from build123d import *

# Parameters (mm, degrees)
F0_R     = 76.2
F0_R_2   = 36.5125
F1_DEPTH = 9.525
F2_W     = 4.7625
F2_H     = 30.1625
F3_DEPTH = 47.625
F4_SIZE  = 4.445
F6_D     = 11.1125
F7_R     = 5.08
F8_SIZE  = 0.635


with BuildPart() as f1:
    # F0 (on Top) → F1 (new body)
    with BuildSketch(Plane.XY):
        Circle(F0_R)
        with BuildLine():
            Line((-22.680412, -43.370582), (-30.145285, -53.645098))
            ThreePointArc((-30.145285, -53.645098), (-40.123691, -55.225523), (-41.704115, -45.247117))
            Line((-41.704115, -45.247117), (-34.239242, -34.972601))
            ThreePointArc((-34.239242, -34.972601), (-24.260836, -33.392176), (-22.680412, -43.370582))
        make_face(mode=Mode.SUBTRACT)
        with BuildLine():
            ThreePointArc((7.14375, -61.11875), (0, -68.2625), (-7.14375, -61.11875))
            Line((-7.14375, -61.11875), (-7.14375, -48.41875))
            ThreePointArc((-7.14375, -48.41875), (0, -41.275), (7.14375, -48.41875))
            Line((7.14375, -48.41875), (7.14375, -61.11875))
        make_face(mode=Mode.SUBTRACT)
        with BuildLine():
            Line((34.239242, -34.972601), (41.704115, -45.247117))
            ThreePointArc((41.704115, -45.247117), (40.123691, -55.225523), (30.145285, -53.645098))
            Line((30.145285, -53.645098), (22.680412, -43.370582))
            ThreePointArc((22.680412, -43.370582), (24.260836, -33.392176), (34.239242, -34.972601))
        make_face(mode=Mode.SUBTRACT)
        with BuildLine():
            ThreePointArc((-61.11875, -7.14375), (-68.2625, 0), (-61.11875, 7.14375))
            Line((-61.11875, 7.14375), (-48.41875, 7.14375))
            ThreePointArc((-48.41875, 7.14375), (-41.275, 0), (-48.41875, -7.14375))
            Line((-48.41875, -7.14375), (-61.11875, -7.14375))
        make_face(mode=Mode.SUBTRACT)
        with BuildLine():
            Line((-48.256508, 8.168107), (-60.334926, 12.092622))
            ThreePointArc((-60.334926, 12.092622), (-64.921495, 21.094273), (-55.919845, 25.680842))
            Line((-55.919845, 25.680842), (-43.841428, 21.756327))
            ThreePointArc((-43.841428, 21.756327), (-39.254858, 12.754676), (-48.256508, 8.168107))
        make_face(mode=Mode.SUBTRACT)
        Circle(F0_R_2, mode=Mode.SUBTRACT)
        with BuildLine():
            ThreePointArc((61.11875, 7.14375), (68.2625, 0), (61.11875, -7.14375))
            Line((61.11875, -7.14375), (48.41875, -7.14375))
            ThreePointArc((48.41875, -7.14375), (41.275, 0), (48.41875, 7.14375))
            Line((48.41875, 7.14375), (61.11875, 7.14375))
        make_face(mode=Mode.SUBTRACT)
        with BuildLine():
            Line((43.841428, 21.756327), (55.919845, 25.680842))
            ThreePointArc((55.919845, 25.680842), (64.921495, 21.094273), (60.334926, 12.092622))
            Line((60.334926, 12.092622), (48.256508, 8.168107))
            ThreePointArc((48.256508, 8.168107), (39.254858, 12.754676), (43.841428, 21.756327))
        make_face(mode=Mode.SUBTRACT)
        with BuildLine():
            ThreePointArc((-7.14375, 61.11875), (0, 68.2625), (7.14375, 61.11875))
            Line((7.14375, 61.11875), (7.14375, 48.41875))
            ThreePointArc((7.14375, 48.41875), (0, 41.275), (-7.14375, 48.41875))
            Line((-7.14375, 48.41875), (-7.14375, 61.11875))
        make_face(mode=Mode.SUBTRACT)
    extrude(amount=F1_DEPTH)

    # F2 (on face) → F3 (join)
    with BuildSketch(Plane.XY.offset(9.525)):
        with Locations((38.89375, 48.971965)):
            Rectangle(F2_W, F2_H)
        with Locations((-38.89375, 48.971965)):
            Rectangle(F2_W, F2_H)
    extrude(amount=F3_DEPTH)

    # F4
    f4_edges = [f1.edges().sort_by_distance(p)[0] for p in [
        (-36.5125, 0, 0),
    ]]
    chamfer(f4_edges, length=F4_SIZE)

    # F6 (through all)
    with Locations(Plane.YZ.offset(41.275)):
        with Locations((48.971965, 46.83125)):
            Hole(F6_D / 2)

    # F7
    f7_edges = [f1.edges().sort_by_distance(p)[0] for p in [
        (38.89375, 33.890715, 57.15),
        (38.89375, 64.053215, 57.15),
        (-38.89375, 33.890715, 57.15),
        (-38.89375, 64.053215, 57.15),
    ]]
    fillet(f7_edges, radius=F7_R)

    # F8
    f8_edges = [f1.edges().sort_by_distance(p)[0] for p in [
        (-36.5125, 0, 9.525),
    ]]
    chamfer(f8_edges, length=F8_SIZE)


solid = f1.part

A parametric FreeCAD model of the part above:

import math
import FreeCAD as App
import Part
import Sketcher
Q = App.Units.Quantity


def edges_at(feature, points):
    """Names of the edges that pass closest to the given points."""
    edges = feature.Shape.Edges
    near = lambda p: min(range(len(edges)), key=lambda i: edges[i].distToShape(Part.Vertex(*p))[0])
    return sorted({f"Edge{near(p) + 1}" for p in points})


def add_polygon(sketch, points):
    """Adds a closed chain of lines whose ends are joined by coincident constraints."""
    first, n = sketch.GeometryCount, len(points)
    for a, b in zip(points, points[1:] + points[:1]):
        sketch.addGeometry(Part.LineSegment(App.Vector(*a, 0), App.Vector(*b, 0)), False)
    for i in range(n):
        sketch.addConstraint(Sketcher.Constraint("Coincident", first + i, 2, first + (i + 1) % n, 1))

doc = App.newDocument("Part")
body = doc.addObject("PartDesign::Body", "Body")

# Sketch on XY plane
sketch1 = body.newObject("Sketcher::SketchObject", "Sketch")
sketch1.AttachmentSupport = (doc.getObject("XY_Plane"), [""])
sketch1.MapMode = "FlatFace"
sketch1.addGeometry(Part.Circle(App.Vector(0, 0, 0), App.Vector(0, 0, 1), 76), False)
sketch1.addGeometry(Part.ArcOfCircle(Part.Circle(App.Vector(-28, -39, 0), App.Vector(0, 0, 1), 7), math.radians(-36), math.radians(144)), False)
sketch1.addGeometry(Part.LineSegment(App.Vector(-23, -43, 0), App.Vector(-30, -54, 0)), False)
sketch1.addGeometry(Part.ArcOfCircle(Part.Circle(App.Vector(-36, -49, 0), App.Vector(0, 0, 1), 7), math.radians(144), math.radians(324)), False)
sketch1.addGeometry(Part.LineSegment(App.Vector(-42, -45, 0), App.Vector(-34, -35, 0)), False)
sketch1.addGeometry(Part.LineSegment(App.Vector(7, -48, 0), App.Vector(7, -61, 0)), False)
sketch1.addGeometry(Part.ArcOfCircle(Part.Circle(App.Vector(0, -61, 0), App.Vector(0, 0, 1), 7), math.radians(180), math.radians(360)), False)
sketch1.addGeometry(Part.LineSegment(App.Vector(-7, -61, 0), App.Vector(-7, -48, 0)), False)
sketch1.addGeometry(Part.ArcOfCircle(Part.Circle(App.Vector(0, -48, 0), App.Vector(0, 0, 1), 7), math.radians(0), math.radians(180)), False)
sketch1.addGeometry(Part.ArcOfCircle(Part.Circle(App.Vector(28, -39, 0), App.Vector(0, 0, 1), 7), math.radians(36), math.radians(216)), False)
sketch1.addGeometry(Part.LineSegment(App.Vector(34, -35, 0), App.Vector(42, -45, 0)), False)
sketch1.addGeometry(Part.ArcOfCircle(Part.Circle(App.Vector(36, -49, 0), App.Vector(0, 0, 1), 7), math.radians(-144), math.radians(36)), False)
sketch1.addGeometry(Part.LineSegment(App.Vector(30, -54, 0), App.Vector(23, -43, 0)), False)
sketch1.addGeometry(Part.LineSegment(App.Vector(-48, -7, 0), App.Vector(-61, -7, 0)), False)
sketch1.addGeometry(Part.ArcOfCircle(Part.Circle(App.Vector(-61, 0, 0), App.Vector(0, 0, 1), 7), math.radians(90), math.radians(270)), False)
sketch1.addGeometry(Part.LineSegment(App.Vector(-61, 7, 0), App.Vector(-48, 7, 0)), False)
sketch1.addGeometry(Part.ArcOfCircle(Part.Circle(App.Vector(-48, 0, 0), App.Vector(0, 0, 1), 7), math.radians(-90), math.radians(90)), False)
sketch1.addGeometry(Part.ArcOfCircle(Part.Circle(App.Vector(-46, 15, 0), App.Vector(0, 0, 1), 7), math.radians(-108), math.radians(72)), False)
sketch1.addGeometry(Part.LineSegment(App.Vector(-48, 8, 0), App.Vector(-60, 12, 0)), False)
sketch1.addGeometry(Part.ArcOfCircle(Part.Circle(App.Vector(-58, 19, 0), App.Vector(0, 0, 1), 7), math.radians(72), math.radians(252)), False)
sketch1.addGeometry(Part.LineSegment(App.Vector(-56, 26, 0), App.Vector(-44, 22, 0)), False)
sketch1.addGeometry(Part.Circle(App.Vector(0, 0, 0), App.Vector(0, 0, 1), 37), False)
sketch1.addGeometry(Part.LineSegment(App.Vector(48, 7, 0), App.Vector(61, 7, 0)), False)
sketch1.addGeometry(Part.ArcOfCircle(Part.Circle(App.Vector(61, 0, 0), App.Vector(0, 0, 1), 7), math.radians(-90), math.radians(90)), False)
sketch1.addGeometry(Part.LineSegment(App.Vector(61, -7, 0), App.Vector(48, -7, 0)), False)
sketch1.addGeometry(Part.ArcOfCircle(Part.Circle(App.Vector(48, 0, 0), App.Vector(0, 0, 1), 7), math.radians(90), math.radians(270)), False)
sketch1.addGeometry(Part.ArcOfCircle(Part.Circle(App.Vector(46, 15, 0), App.Vector(0, 0, 1), 7), math.radians(108), math.radians(288)), False)
sketch1.addGeometry(Part.LineSegment(App.Vector(44, 22, 0), App.Vector(56, 26, 0)), False)
sketch1.addGeometry(Part.ArcOfCircle(Part.Circle(App.Vector(58, 19, 0), App.Vector(0, 0, 1), 7), math.radians(-72), math.radians(108)), False)
sketch1.addGeometry(Part.LineSegment(App.Vector(60, 12, 0), App.Vector(48, 8, 0)), False)
sketch1.addGeometry(Part.LineSegment(App.Vector(-7, 48, 0), App.Vector(-7, 61, 0)), False)
sketch1.addGeometry(Part.ArcOfCircle(Part.Circle(App.Vector(0, 61, 0), App.Vector(0, 0, 1), 7), math.radians(0), math.radians(180)), False)
sketch1.addGeometry(Part.LineSegment(App.Vector(7, 61, 0), App.Vector(7, 48, 0)), False)
sketch1.addGeometry(Part.ArcOfCircle(Part.Circle(App.Vector(0, 48, 0), App.Vector(0, 0, 1), 7), math.radians(180), math.radians(360)), False)
sketch1.addConstraint(Sketcher.Constraint("Tangent", 1, 1, 2, 1))
sketch1.addConstraint(Sketcher.Constraint("Tangent", 2, 2, 3, 2))
sketch1.addConstraint(Sketcher.Constraint("Tangent", 3, 1, 4, 1))
sketch1.addConstraint(Sketcher.Constraint("Tangent", 4, 2, 1, 2))
sketch1.addConstraint(Sketcher.Constraint("Tangent", 5, 2, 6, 2))
sketch1.addConstraint(Sketcher.Constraint("Tangent", 6, 1, 7, 1))
sketch1.addConstraint(Sketcher.Constraint("Tangent", 7, 2, 8, 2))
sketch1.addConstraint(Sketcher.Constraint("Tangent", 8, 1, 5, 1))
sketch1.addConstraint(Sketcher.Constraint("Tangent", 9, 1, 10, 1))
sketch1.addConstraint(Sketcher.Constraint("Tangent", 10, 2, 11, 2))
sketch1.addConstraint(Sketcher.Constraint("Tangent", 11, 1, 12, 1))
sketch1.addConstraint(Sketcher.Constraint("Tangent", 12, 2, 9, 2))
sketch1.addConstraint(Sketcher.Constraint("Tangent", 13, 2, 14, 2))
sketch1.addConstraint(Sketcher.Constraint("Tangent", 14, 1, 15, 1))
sketch1.addConstraint(Sketcher.Constraint("Tangent", 15, 2, 16, 2))
sketch1.addConstraint(Sketcher.Constraint("Tangent", 16, 1, 13, 1))
sketch1.addConstraint(Sketcher.Constraint("Tangent", 17, 1, 18, 1))
sketch1.addConstraint(Sketcher.Constraint("Tangent", 18, 2, 19, 2))
sketch1.addConstraint(Sketcher.Constraint("Tangent", 19, 1, 20, 1))
sketch1.addConstraint(Sketcher.Constraint("Tangent", 20, 2, 17, 2))
sketch1.addConstraint(Sketcher.Constraint("Tangent", 22, 2, 23, 2))
sketch1.addConstraint(Sketcher.Constraint("Tangent", 23, 1, 24, 1))
sketch1.addConstraint(Sketcher.Constraint("Tangent", 24, 2, 25, 2))
sketch1.addConstraint(Sketcher.Constraint("Tangent", 25, 1, 22, 1))
sketch1.addConstraint(Sketcher.Constraint("Tangent", 26, 1, 27, 1))
sketch1.addConstraint(Sketcher.Constraint("Tangent", 27, 2, 28, 2))
sketch1.addConstraint(Sketcher.Constraint("Tangent", 28, 1, 29, 1))
sketch1.addConstraint(Sketcher.Constraint("Tangent", 29, 2, 26, 2))
sketch1.addConstraint(Sketcher.Constraint("Tangent", 30, 2, 31, 2))
sketch1.addConstraint(Sketcher.Constraint("Tangent", 31, 1, 32, 1))
sketch1.addConstraint(Sketcher.Constraint("Tangent", 32, 2, 33, 2))
sketch1.addConstraint(Sketcher.Constraint("Tangent", 33, 1, 30, 1))
sketch1.addConstraint(Sketcher.Constraint("Vertical", 5))
sketch1.addConstraint(Sketcher.Constraint("Vertical", 7))
sketch1.addConstraint(Sketcher.Constraint("Horizontal", 13))
sketch1.addConstraint(Sketcher.Constraint("Horizontal", 15))
sketch1.addConstraint(Sketcher.Constraint("Horizontal", 22))
sketch1.addConstraint(Sketcher.Constraint("Horizontal", 24))
sketch1.addConstraint(Sketcher.Constraint("Vertical", 30))
sketch1.addConstraint(Sketcher.Constraint("Vertical", 32))
sketch1.addConstraint(Sketcher.Constraint("Coincident", 0, 3, -1, 1))
sketch1.addConstraint(Sketcher.Constraint("Coincident", 21, 3, -1, 1))
sketch1.addConstraint(Sketcher.Constraint("Equal", 1, 3))
sketch1.addConstraint(Sketcher.Constraint("Equal", 3, 6))
sketch1.addConstraint(Sketcher.Constraint("Equal", 8, 9))
sketch1.addConstraint(Sketcher.Constraint("Equal", 9, 11))
sketch1.addConstraint(Sketcher.Constraint("Equal", 11, 14))
sketch1.addConstraint(Sketcher.Constraint("Equal", 16, 17))
sketch1.addConstraint(Sketcher.Constraint("Equal", 17, 19))
sketch1.addConstraint(Sketcher.Constraint("Equal", 19, 23))
sketch1.addConstraint(Sketcher.Constraint("Equal", 25, 26))
sketch1.addConstraint(Sketcher.Constraint("Equal", 26, 28))
sketch1.addConstraint(Sketcher.Constraint("Equal", 28, 31))
sketch1.addConstraint(Sketcher.Constraint("Symmetric", 14, 3, 23, 3, -1, 1))
sketch1.addConstraint(Sketcher.Constraint("Symmetric", 6, 3, 31, 3, -1, 1))
sketch1.addConstraint(Sketcher.Constraint("Symmetric", 1, 3, 9, 3, -2))
sketch1.addConstraint(Sketcher.Constraint("Symmetric", 3, 3, 11, 3, -2))
sketch1.addConstraint(Sketcher.Constraint("Symmetric", 16, 3, 25, 3, -2))
sketch1.addConstraint(Sketcher.Constraint("Symmetric", 17, 3, 26, 3, -2))
sketch1.addConstraint(Sketcher.Constraint("Symmetric", 19, 3, 28, 3, -2))
sketch1.addConstraint(Sketcher.Constraint("Symmetric", 8, 3, 33, 3, -1))
sketch1.addConstraint(Sketcher.Constraint("Equal", 24, 5))
sketch1.addConstraint(Sketcher.Constraint("Equal", 12, 18))
sketch1.addConstraint(Sketcher.Constraint("Diameter", 0, Q("6 in")))
sketch1.addConstraint(Sketcher.Constraint("Diameter", 21, Q("2.875 in")))
sketch1.addConstraint(Sketcher.Constraint("DistanceX", 13, 2, 13, 1, Q("0.5 in")))
sketch1.addConstraint(Sketcher.Constraint("Angle", 2, Q("-126.000001 deg")))
sketch1.addConstraint(Sketcher.Constraint("Angle", 18, Q("162.000004 deg")))
sketch1.addConstraint(Sketcher.Constraint("Radius", 1, Q("0.28125 in")))
sketch1.addConstraint(Sketcher.Constraint("Distance", 2, Q("0.5 in")))
sketch1.addConstraint(Sketcher.Constraint("DistanceY", 6, 3, -1, 1, Q("2.40625 in")))
sketch1.addConstraint(Sketcher.Constraint("DistanceX", 14, 3, -1, 1, Q("2.40625 in")))
sketch1.addConstraint(Sketcher.Constraint("DistanceX", 3, 3, -1, 1, 35.9247))
sketch1.addConstraint(Sketcher.Constraint("DistanceY", 4, 2, -1, 1, 34.972601))
sketch1.addConstraint(Sketcher.Constraint("DistanceY", -1, 1, 19, 3, 18.886732))
sketch1.addConstraint(Sketcher.Constraint("DistanceX", 17, 3, 1, 3, 17.589141))
pad1 = body.newObject("PartDesign::Pad", "Pad")
pad1.Profile = sketch1
pad1.Length = Q("0.375 in")

# Sketch on XY plane
sketch2 = body.newObject("Sketcher::SketchObject", "Sketch001")
sketch2.AttachmentSupport = (doc.getObject("XY_Plane"), [""])
sketch2.MapMode = "FlatFace"
sketch2.AttachmentOffset = App.Placement(App.Vector(0, 0, 0.375 * 25.4), App.Rotation())
add_polygon(sketch2, [(36.5, 64.1), (36.5, 33.9), (41.3, 33.9), (41.3, 64.1)])  # lines 0-3
add_polygon(sketch2, [(-41.3, 64.1), (-41.3, 33.9), (-36.5, 33.9), (-36.5, 64.1)])  # lines 4-7
sketch2.addConstraint(Sketcher.Constraint("Vertical", 0))
sketch2.addConstraint(Sketcher.Constraint("Horizontal", 1))
sketch2.addConstraint(Sketcher.Constraint("Vertical", 2))
sketch2.addConstraint(Sketcher.Constraint("Horizontal", 3))
sketch2.addConstraint(Sketcher.Constraint("Vertical", 4))
sketch2.addConstraint(Sketcher.Constraint("Horizontal", 5))
sketch2.addConstraint(Sketcher.Constraint("Vertical", 6))
sketch2.addConstraint(Sketcher.Constraint("Horizontal", 7))
sketch2.addConstraint(Sketcher.Constraint("Symmetric", 1, 2, 4, 2, -2))
sketch2.addConstraint(Sketcher.Constraint("Symmetric", 3, 2, 6, 2, -2))
sketch2.addConstraint(Sketcher.Constraint("DistanceX", 1, 1, 1, 2, Q("0.1875 in")))
sketch2.addConstraint(Sketcher.Constraint("DistanceY", 0, 2, 0, 1, Q("1.1875 in")))
sketch2.addConstraint(Sketcher.Constraint("DistanceX", 4, 2, 1, 2, Q("3.25 in")))
sketch2.addConstraint(Sketcher.Constraint("DistanceY", -1, 1, 0, 2, 33.890715))
pad2 = body.newObject("PartDesign::Pad", "Pad001")
pad2.Profile = sketch2
pad2.Length = Q("1.875 in")
doc.recompute()

chamfer = body.newObject("PartDesign::Chamfer", "Chamfer")
chamfer.Base = (pad2, edges_at(pad2, [(-36.513, 0, 0)]))
chamfer.Size = Q("0.175 in")

# Sketch on YZ plane
sketch3 = body.newObject("Sketcher::SketchObject", "Sketch002")
sketch3.AttachmentSupport = (doc.getObject("YZ_Plane"), [""])
sketch3.MapMode = "FlatFace"
sketch3.AttachmentOffset = App.Placement(App.Vector(0, 0, 1.625 * 25.4), App.Rotation())
sketch3.addGeometry(Part.Circle(App.Vector(49, 47, 0), App.Vector(0, 0, 1), 6), False)
sketch3.addConstraint(Sketcher.Constraint("Diameter", 0, Q("0.4375 in")))
sketch3.addConstraint(Sketcher.Constraint("DistanceY", -1, 1, 0, 3, Q("1.84375 in")))
sketch3.addConstraint(Sketcher.Constraint("DistanceX", -1, 1, 0, 3, 48.971965))
doc.recompute()
hole = body.newObject("PartDesign::Hole", "Hole")
hole.Profile = sketch3
hole.ThreadType = "None"
hole.Diameter = Q("0.4375 in")
hole.DepthType = "ThroughAll"
doc.recompute()

fillet = body.newObject("PartDesign::Fillet", "Fillet")
fillet.Base = (hole, edges_at(hole, [
    (38.894, 33.891, 57.15),
    (38.894, 64.053, 57.15),
    (-38.894, 33.891, 57.15),
    (-38.894, 64.053, 57.15),
]))
fillet.Radius = Q("0.2 in")
doc.recompute()

chamfer2 = body.newObject("PartDesign::Chamfer", "Chamfer001")
chamfer2.Base = (fillet, edges_at(fillet, [(-36.513, 0, 9.525)]))
chamfer2.Size = Q("0.025 in")

doc.recompute()
